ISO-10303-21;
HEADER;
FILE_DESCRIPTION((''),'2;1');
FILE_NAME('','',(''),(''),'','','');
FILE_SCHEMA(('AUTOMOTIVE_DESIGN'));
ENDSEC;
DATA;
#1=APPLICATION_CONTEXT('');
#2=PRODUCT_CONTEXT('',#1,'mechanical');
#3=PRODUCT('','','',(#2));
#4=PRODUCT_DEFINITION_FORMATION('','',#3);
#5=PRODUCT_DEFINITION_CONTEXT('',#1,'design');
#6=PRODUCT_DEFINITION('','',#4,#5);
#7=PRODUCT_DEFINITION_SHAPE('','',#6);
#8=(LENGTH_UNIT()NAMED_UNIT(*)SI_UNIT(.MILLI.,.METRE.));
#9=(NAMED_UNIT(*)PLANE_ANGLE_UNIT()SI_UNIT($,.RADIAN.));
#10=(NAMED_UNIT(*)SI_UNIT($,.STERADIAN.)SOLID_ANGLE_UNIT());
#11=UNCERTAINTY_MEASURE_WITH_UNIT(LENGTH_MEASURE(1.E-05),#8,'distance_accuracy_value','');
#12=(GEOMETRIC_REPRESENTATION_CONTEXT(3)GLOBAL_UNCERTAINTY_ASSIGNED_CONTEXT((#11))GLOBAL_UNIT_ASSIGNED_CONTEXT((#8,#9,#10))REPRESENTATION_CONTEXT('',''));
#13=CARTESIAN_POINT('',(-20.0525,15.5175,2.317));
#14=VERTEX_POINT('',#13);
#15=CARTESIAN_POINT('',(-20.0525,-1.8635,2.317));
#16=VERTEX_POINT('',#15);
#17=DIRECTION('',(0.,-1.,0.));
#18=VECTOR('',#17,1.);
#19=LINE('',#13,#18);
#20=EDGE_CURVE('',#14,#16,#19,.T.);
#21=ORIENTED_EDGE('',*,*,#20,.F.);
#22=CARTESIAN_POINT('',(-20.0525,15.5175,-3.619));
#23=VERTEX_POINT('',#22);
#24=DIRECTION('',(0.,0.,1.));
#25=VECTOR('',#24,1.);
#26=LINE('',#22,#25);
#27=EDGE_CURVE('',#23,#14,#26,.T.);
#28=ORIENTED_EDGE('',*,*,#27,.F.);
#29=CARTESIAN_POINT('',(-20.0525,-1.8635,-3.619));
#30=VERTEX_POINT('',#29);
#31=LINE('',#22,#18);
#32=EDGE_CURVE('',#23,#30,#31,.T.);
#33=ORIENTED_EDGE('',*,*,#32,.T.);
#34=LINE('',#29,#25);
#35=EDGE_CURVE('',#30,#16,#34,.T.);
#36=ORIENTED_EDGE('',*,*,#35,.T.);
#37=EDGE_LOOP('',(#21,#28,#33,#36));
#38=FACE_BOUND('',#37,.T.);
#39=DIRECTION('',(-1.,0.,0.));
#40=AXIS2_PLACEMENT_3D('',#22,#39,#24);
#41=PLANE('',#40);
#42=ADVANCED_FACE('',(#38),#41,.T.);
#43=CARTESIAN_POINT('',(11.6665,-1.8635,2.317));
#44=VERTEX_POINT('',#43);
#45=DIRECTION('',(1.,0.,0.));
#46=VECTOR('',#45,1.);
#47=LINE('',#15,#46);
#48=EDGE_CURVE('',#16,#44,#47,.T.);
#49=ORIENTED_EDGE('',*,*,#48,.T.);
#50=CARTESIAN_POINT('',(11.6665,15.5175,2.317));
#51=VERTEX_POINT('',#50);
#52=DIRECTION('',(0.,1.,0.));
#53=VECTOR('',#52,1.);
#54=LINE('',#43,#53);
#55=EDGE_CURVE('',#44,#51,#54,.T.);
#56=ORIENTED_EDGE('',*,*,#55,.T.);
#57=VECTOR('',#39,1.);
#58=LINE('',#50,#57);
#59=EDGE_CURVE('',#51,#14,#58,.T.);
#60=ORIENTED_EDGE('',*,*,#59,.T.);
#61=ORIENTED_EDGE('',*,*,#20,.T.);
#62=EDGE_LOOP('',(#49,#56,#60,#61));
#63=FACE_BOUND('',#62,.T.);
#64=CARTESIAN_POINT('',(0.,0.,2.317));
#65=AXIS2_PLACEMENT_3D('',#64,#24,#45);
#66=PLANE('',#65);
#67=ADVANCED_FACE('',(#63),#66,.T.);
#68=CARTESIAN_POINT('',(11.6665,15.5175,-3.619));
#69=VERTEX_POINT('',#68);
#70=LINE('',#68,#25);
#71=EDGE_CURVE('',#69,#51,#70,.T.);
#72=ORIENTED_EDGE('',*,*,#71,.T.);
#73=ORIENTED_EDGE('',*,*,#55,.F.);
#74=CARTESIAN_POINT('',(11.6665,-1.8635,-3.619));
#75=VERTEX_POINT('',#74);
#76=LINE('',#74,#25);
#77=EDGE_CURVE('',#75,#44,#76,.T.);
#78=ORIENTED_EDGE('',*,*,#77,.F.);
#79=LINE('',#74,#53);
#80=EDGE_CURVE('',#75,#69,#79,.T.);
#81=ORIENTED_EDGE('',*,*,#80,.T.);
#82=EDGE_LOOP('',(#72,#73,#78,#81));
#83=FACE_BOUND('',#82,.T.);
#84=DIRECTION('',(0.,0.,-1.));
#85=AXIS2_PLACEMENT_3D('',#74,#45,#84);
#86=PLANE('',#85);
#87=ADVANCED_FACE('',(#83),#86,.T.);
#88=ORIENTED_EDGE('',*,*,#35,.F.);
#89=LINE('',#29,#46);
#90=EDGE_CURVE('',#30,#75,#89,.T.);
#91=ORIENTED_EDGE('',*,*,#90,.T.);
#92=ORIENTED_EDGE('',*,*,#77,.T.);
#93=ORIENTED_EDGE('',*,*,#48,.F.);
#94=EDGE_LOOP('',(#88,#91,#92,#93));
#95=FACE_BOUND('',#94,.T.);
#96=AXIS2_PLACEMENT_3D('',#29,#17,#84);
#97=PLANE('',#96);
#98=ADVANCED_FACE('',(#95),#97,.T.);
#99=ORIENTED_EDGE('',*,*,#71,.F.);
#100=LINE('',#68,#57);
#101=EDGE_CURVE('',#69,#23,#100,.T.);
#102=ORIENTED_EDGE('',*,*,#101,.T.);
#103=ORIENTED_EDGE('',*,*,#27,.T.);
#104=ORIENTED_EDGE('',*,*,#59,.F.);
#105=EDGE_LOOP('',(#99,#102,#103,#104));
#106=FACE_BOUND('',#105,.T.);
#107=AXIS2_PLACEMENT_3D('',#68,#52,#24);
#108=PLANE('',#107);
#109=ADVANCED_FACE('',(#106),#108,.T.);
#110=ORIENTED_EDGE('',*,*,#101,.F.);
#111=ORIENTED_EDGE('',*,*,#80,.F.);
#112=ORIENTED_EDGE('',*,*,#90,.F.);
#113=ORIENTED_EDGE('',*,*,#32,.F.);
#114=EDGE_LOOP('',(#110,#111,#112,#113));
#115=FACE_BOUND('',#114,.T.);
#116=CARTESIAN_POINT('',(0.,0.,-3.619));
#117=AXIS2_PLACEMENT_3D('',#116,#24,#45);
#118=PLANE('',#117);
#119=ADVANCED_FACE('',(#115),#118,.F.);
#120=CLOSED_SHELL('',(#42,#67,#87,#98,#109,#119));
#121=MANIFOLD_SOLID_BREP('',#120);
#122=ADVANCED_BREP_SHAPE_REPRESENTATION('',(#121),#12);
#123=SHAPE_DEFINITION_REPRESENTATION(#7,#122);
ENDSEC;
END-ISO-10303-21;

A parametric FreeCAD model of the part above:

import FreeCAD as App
import Part
import Sketcher

V = App.Vector


def add_polygon(sketch, points):
    """Adds a closed chain of lines whose ends are joined by coincident constraints."""
    first, n = sketch.GeometryCount, len(points)
    for a, b in zip(points, points[1:] + points[:1]):
        sketch.addGeometry(Part.LineSegment(App.Vector(*a, 0), App.Vector(*b, 0)), False)
    for i in range(n):
        sketch.addConstraint(Sketcher.Constraint("Coincident", first + i, 2, first + (i + 1) % n, 1))

doc = App.newDocument("Part")
body = doc.addObject("PartDesign::Body", "Body")

# Sketch on XY plane
sketch1 = body.newObject("Sketcher::SketchObject", "Sketch")
sketch1.AttachmentSupport = (doc.getObject("XY_Plane"), [""])
sketch1.MapMode = "FlatFace"
add_polygon(sketch1, [(-20, 16), (-20, -2), (12, -2), (12, 16)])  # lines 0-3
sketch1.addConstraint([
    Sketcher.Constraint("Vertical", 0),
    Sketcher.Constraint("Horizontal", 1),
    Sketcher.Constraint("Vertical", 2),
    Sketcher.Constraint("Horizontal", 3),
    Sketcher.Constraint("DistanceX", 1, 1, 1, 2, 31.719),
    Sketcher.Constraint("DistanceY", 0, 2, 0, 1, 17.381),
    Sketcher.Constraint("DistanceX", 0, 2, -1, 1, 20.0525),
    Sketcher.Constraint("DistanceY", 0, 2, -1, 1, 1.8635),
])
pad1 = body.newObject("PartDesign::Pad", "Pad")
pad1.Profile = sketch1
pad1.Type = "TwoLengths"
pad1.Length = 2.317
pad1.Length2 = 3.619

doc.recompute()
